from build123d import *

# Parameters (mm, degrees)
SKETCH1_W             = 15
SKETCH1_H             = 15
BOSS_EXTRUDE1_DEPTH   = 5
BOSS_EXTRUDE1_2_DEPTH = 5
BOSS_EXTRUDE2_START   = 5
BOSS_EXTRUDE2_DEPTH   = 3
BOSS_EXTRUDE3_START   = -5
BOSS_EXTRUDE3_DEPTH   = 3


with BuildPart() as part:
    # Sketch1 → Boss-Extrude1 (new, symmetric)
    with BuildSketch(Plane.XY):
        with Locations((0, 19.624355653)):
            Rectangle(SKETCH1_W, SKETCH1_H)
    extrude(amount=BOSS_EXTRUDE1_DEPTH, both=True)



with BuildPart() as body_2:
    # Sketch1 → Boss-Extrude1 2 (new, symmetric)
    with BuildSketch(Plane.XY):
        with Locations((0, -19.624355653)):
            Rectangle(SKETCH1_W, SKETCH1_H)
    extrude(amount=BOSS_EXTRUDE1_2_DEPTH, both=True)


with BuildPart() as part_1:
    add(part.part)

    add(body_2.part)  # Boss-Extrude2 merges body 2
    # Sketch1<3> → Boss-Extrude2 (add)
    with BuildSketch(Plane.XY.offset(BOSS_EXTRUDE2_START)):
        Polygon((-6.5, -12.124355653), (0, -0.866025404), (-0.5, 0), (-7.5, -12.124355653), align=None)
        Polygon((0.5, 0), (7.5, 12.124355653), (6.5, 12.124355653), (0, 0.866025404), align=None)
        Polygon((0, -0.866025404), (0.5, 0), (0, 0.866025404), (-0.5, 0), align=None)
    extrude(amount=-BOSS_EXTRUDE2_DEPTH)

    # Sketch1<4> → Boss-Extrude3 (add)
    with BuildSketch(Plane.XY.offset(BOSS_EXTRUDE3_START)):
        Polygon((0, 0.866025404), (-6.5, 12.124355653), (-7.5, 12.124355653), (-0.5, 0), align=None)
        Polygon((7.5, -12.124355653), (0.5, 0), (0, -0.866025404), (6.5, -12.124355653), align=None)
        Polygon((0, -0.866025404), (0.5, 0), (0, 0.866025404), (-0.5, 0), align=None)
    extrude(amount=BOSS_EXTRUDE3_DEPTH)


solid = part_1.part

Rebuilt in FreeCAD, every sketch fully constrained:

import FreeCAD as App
import Part
import Sketcher
Q = App.Units.Quantity


def add_polygon(sketch, points):
    """Adds a closed chain of lines whose ends are joined by coincident constraints."""
    first, n = sketch.GeometryCount, len(points)
    for a, b in zip(points, points[1:] + points[:1]):
        sketch.addGeometry(Part.LineSegment(App.Vector(*a, 0), App.Vector(*b, 0)), False)
    for i in range(n):
        sketch.addConstraint(Sketcher.Constraint("Coincident", first + i, 2, first + (i + 1) % n, 1))

doc = App.newDocument("Part")
body = doc.addObject("PartDesign::Body", "Body")

sketch1 = body.newObject("Sketcher::SketchObject", "Sketch")
sketch1.AttachmentSupport = (doc.getObject("XY_Plane"), [""])
sketch1.MapMode = "FlatFace"
add_polygon(sketch1, [(-8, 27), (-8, 12), (8, 12), (8, 27)])
sketch1.addConstraint([
    Sketcher.Constraint("Vertical", 0),
    Sketcher.Constraint("Horizontal", 1),
    Sketcher.Constraint("Vertical", 2),
    Sketcher.Constraint("Horizontal", 3),
    Sketcher.Constraint("Equal", 3, 0),
    Sketcher.Constraint("DistanceX", 1, 1, 1, 2, 15.0),
    Sketcher.Constraint("DistanceX", 0, 2, -1, 1, 7.5),
    Sketcher.Constraint("DistanceY", -1, 1, 0, 2, 12.124356),
])
pad1 = body.newObject("PartDesign::Pad", "Pad")
pad1.Profile = sketch1
pad1.Length = 10
pad1.Midplane = True
body2 = doc.addObject("PartDesign::Body", "Body001")

sketch2 = body2.newObject("Sketcher::SketchObject", "Sketch001")
sketch2.AttachmentSupport = (doc.getObject("XY_Plane001"), [""])
sketch2.MapMode = "FlatFace"
add_polygon(sketch2, [(-8, -12), (-8, -27), (8, -27), (8, -12)])
sketch2.addConstraint([
    Sketcher.Constraint("Vertical", 0),
    Sketcher.Constraint("Horizontal", 1),
    Sketcher.Constraint("Vertical", 2),
    Sketcher.Constraint("Horizontal", 3),
    Sketcher.Constraint("Equal", 3, 0),
    Sketcher.Constraint("DistanceX", 1, 1, 1, 2, 15.0),
    Sketcher.Constraint("DistanceX", 0, 2, -1, 1, 7.5),
    Sketcher.Constraint("DistanceY", 0, 2, -1, 1, 27.124356),
])
pad2 = body2.newObject("PartDesign::Pad", "Pad001")
pad2.Profile = sketch2
pad2.Length = 10
pad2.Midplane = True
body.AllowCompound = True
doc.recompute()

boolean = body.newObject("PartDesign::Boolean", "Boolean")
boolean.Type = "Fuse"
boolean.addObjects([body2])

sketch3 = body.newObject("Sketcher::SketchObject", "Sketch002")
sketch3.AttachmentSupport = (doc.getObject("XY_Plane"), [""])
sketch3.MapMode = "FlatFace"
sketch3.AttachmentOffset = App.Placement(App.Vector(0, 0, 5), App.Rotation())
add_polygon(sketch3, [(-6.5, -12.1), (0, -0.9), (0.5, 0), (7.5, 12.1), (6.5, 12.1), (0, 0.9), (-0.5, 0), (-7.5, -12.1)])
sketch3.addConstraint([
    Sketcher.Constraint("Horizontal", 3),
    Sketcher.Constraint("Horizontal", 7),
    Sketcher.Constraint("Symmetric", 0, 2, 4, 2, -1, 1),
    Sketcher.Constraint("Symmetric", 1, 2, 5, 2, -1, 1),
    Sketcher.Constraint("Symmetric", 2, 2, 6, 2, -1, 1),
    Sketcher.Constraint("PointOnObject", 0, 2, -2),
    Sketcher.Constraint("PointOnObject", 1, 2, -1),
    Sketcher.Constraint("Parallel", 0, 1),
    Sketcher.Constraint("Parallel", 1, 2),
    Sketcher.Constraint("Parallel", 2, 4),
    Sketcher.Constraint("DistanceX", 3, 2, 3, 1, 1.0),
    Sketcher.Constraint("Angle", 0, Q("60 deg")),
    Sketcher.Constraint("Distance", 0, 13.0),
])
pad3 = body.newObject("PartDesign::Pad", "Pad002")
pad3.Profile = sketch3
pad3.Length = 3
pad3.Reversed = True

sketch4 = body.newObject("Sketcher::SketchObject", "Sketch003")
sketch4.AttachmentSupport = (doc.getObject("XY_Plane"), [""])
sketch4.MapMode = "FlatFace"
sketch4.AttachmentOffset = App.Placement(App.Vector(0, 0, -5), App.Rotation())
add_polygon(sketch4, [(0, 0.9), (-6.5, 12.1), (-7.5, 12.1), (-0.5, 0), (0, -0.9), (6.5, -12.1), (7.5, -12.1), (0.5, 0)])
sketch4.addConstraint([
    Sketcher.Constraint("Horizontal", 1),
    Sketcher.Constraint("Horizontal", 5),
    Sketcher.Constraint("Symmetric", 0, 2, 4, 2, -1, 1),
    Sketcher.Constraint("Symmetric", 2, 2, 6, 2, -1, 1),
    Sketcher.Constraint("Symmetric", 3, 2, 7, 2, -1, 1),
    Sketcher.Constraint("PointOnObject", 2, 2, -1),
    Sketcher.Constraint("PointOnObject", 3, 2, -2),
    Sketcher.Constraint("Parallel", 0, 2),
    Sketcher.Constraint("Parallel", 2, 3),
    Sketcher.Constraint("Parallel", 4, 6),
    Sketcher.Constraint("DistanceX", 1, 2, 1, 1, 1.0),
    Sketcher.Constraint("Angle", 0, Q("120 deg")),
    Sketcher.Constraint("Distance", 0, 13.0),
])
pad4 = body.newObject("PartDesign::Pad", "Pad003")
pad4.Profile = sketch4
pad4.Length = 3

doc.recompute()
